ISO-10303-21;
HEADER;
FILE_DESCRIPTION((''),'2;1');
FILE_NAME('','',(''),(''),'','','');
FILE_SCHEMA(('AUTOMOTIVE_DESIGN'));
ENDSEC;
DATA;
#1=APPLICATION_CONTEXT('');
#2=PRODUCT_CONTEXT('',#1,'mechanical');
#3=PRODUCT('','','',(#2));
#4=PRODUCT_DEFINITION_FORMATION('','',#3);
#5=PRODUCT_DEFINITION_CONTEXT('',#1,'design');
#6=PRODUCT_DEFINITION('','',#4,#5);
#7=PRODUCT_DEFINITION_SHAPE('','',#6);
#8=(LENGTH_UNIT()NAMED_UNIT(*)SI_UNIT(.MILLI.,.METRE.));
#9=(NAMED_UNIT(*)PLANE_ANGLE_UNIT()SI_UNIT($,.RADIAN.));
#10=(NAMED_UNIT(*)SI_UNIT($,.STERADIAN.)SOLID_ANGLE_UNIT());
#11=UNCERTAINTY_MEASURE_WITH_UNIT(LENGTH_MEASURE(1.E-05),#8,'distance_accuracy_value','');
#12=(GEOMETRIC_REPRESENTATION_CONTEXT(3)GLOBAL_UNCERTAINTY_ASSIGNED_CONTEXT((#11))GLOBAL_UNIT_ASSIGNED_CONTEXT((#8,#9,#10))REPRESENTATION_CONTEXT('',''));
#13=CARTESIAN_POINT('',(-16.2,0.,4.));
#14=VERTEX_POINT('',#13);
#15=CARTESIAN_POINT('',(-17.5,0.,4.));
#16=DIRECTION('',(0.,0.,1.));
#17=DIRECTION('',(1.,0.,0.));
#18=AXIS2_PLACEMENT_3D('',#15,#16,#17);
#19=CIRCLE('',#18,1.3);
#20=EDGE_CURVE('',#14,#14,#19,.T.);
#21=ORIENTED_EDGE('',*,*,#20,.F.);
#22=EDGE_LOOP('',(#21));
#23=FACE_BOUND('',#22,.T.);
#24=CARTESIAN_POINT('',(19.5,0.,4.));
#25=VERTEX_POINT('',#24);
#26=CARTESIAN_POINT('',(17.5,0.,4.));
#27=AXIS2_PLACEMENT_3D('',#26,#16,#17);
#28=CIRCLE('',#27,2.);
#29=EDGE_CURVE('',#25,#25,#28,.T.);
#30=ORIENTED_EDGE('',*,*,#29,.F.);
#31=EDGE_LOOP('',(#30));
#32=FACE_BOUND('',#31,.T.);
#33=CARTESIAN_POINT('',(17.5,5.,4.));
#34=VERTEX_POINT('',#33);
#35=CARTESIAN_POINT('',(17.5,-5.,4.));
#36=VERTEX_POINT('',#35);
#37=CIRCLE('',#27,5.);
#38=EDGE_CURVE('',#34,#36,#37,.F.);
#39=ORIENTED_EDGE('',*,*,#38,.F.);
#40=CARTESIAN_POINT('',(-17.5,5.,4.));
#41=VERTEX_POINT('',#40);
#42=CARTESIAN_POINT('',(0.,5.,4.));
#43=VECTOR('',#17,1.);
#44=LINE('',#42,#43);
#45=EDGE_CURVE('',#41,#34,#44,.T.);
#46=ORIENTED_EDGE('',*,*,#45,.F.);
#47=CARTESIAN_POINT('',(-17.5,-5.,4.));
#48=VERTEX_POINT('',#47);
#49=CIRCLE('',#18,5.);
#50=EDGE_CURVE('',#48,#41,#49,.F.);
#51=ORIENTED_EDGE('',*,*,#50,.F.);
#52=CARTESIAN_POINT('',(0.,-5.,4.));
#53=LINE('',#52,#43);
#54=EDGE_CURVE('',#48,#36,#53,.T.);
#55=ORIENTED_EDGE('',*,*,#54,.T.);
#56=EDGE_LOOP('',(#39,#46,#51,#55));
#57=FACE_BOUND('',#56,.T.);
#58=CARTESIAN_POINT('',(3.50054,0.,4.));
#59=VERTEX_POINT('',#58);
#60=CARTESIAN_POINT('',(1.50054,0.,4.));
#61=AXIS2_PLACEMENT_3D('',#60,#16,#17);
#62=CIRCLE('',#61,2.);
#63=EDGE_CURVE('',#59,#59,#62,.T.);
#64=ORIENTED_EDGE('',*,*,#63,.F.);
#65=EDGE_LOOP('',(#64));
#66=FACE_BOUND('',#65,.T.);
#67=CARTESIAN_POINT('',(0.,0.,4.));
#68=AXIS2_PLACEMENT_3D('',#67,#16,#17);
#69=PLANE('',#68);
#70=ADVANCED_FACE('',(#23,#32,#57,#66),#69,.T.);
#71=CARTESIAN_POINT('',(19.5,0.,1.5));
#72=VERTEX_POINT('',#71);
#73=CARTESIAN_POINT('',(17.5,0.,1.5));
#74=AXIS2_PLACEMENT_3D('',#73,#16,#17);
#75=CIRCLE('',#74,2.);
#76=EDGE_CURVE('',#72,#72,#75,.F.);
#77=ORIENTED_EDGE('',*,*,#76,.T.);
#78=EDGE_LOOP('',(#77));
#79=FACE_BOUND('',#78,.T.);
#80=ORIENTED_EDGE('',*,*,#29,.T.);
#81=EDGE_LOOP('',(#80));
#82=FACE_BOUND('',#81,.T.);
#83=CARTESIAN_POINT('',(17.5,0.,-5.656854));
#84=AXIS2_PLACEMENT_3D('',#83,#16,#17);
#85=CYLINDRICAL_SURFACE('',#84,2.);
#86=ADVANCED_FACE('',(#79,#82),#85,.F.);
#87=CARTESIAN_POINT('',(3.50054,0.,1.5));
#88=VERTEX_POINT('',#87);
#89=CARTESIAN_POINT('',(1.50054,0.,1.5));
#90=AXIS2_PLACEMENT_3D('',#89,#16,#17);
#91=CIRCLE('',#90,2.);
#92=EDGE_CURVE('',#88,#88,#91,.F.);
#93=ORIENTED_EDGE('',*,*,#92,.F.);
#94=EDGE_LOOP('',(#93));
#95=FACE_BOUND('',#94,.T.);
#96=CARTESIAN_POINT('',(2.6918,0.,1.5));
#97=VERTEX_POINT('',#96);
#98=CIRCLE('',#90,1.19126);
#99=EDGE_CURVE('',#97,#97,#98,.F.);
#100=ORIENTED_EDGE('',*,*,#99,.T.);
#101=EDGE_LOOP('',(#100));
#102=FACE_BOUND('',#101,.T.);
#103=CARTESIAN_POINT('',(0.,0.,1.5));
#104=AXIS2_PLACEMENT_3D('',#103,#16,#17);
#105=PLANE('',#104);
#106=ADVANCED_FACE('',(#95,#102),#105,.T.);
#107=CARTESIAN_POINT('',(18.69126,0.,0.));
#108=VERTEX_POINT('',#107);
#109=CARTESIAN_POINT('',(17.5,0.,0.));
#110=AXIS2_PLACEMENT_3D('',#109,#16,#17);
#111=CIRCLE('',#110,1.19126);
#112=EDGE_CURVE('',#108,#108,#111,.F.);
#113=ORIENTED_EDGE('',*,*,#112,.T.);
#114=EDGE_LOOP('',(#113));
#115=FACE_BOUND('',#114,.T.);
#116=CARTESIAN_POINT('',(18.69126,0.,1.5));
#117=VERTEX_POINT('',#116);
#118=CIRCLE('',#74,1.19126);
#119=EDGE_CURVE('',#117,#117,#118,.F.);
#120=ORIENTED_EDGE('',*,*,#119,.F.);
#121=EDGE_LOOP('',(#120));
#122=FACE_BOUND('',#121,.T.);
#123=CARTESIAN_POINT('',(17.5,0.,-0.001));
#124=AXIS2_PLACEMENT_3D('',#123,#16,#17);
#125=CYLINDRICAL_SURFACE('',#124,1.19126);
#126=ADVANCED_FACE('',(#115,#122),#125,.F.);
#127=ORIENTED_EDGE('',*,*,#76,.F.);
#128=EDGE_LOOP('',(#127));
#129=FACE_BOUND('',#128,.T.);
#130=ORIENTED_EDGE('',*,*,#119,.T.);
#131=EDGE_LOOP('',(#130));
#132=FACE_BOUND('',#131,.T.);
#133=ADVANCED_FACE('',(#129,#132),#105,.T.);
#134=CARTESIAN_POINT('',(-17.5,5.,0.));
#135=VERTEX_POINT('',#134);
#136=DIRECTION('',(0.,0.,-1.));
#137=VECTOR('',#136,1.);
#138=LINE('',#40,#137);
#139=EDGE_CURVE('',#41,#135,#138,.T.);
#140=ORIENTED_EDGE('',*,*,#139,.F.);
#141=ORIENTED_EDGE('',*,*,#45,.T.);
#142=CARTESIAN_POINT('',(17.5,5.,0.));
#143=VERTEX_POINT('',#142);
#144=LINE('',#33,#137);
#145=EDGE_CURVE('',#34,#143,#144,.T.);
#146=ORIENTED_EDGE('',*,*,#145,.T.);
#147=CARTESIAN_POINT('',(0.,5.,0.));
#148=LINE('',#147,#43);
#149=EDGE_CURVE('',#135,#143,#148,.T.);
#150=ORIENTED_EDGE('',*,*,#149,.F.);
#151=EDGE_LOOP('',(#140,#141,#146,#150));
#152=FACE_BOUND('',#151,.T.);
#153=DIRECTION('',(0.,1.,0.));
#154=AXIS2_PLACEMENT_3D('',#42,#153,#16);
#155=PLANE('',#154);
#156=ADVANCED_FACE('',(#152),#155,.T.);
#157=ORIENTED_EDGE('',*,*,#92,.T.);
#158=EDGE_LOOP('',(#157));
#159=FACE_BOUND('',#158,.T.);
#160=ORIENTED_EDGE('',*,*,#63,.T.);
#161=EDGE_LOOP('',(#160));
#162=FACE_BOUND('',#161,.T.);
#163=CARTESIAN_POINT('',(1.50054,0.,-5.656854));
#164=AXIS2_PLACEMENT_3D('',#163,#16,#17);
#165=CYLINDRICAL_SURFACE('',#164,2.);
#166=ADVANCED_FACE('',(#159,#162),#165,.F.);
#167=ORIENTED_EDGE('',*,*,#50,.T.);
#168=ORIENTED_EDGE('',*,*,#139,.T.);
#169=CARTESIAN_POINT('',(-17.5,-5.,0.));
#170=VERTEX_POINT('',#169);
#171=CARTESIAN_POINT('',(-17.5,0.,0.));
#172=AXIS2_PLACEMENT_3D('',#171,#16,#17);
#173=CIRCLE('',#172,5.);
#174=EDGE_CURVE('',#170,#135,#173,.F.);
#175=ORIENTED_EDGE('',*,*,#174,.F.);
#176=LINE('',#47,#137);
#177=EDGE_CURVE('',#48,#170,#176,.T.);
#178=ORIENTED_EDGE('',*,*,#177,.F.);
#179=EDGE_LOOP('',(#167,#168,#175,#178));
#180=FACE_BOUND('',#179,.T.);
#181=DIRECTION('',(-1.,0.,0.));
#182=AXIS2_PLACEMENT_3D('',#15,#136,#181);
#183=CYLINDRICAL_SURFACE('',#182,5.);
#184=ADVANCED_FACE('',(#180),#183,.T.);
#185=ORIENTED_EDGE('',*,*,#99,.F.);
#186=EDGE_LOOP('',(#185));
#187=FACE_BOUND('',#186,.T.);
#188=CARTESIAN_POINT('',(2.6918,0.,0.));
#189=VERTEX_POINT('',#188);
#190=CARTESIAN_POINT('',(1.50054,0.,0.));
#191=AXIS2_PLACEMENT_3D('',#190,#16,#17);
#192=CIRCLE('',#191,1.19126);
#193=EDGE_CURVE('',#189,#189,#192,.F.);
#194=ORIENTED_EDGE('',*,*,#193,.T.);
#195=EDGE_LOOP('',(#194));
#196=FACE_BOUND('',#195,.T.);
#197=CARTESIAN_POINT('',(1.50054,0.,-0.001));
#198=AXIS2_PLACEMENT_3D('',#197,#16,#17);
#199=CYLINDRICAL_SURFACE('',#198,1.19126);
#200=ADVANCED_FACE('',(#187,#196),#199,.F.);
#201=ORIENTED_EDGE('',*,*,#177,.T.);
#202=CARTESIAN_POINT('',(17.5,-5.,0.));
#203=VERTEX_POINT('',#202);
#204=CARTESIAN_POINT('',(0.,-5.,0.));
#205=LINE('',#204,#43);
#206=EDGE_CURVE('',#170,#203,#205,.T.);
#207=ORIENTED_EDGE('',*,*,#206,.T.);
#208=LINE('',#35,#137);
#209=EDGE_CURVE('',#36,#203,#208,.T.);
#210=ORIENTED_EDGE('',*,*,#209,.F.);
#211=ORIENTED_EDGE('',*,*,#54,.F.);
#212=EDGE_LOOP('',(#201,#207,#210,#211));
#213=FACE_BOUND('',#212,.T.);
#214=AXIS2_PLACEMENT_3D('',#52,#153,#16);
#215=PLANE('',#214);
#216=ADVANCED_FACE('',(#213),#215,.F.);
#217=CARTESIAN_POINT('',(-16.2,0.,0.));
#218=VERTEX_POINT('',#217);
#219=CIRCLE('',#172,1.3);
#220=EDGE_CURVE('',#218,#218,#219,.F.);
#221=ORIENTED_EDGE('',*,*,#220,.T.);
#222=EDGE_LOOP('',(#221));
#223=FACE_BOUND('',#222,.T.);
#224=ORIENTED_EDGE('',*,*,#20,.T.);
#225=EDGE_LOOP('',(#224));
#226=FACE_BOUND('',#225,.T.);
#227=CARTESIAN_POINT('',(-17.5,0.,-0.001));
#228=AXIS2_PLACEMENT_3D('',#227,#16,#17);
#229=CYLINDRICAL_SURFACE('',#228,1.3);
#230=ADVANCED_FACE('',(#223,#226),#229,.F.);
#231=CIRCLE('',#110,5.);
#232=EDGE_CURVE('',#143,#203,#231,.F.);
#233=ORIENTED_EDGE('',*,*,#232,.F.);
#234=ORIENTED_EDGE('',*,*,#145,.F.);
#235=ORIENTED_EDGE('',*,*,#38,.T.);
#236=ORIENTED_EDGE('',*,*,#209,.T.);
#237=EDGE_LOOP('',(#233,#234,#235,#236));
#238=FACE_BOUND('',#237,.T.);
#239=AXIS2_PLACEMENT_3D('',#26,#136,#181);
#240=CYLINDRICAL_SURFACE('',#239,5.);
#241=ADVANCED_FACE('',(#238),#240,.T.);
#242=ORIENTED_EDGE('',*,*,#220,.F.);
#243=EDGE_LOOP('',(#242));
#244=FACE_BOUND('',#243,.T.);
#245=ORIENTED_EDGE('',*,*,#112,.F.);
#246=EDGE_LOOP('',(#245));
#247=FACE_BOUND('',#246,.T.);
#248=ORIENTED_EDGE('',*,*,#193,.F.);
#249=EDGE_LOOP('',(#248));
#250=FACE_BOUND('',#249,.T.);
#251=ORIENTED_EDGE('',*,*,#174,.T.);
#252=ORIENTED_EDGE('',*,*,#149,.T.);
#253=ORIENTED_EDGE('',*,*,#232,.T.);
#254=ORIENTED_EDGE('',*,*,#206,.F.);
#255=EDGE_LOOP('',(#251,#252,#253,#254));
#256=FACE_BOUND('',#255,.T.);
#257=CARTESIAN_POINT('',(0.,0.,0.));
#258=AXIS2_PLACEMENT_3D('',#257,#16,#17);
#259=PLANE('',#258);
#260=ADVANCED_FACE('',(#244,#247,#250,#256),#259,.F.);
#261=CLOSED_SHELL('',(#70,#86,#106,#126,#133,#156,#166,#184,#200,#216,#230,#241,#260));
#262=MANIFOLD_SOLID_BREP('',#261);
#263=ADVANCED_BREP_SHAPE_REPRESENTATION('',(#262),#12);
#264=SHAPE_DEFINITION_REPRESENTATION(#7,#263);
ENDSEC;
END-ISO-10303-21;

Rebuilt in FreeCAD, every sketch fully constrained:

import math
import FreeCAD as App
import Part
import Sketcher
from FreeCAD import Vector

doc = App.newDocument("Part")
body = doc.addObject("PartDesign::Body", "Body")

# Sketch on XY plane
sketch1 = body.newObject("Sketcher::SketchObject", "Sketch")
sketch1.AttachmentSupport = (doc.getObject("XY_Plane"), [""])
sketch1.MapMode = "FlatFace"
sketch1.addGeometry([
    Part.LineSegment(Vector(-17.5, -5, 0), Vector(17.5, -5, 0)),
    Part.ArcOfCircle(Part.Circle(Vector(17.5, 0, 0), Vector(0, 0, 1), 5), math.radians(-90), math.radians(90)),
    Part.LineSegment(Vector(17.5, 5, 0), Vector(-17.5, 5, 0)),
    Part.ArcOfCircle(Part.Circle(Vector(-17.5, 0, 0), Vector(0, 0, 1), 5), math.radians(90), math.radians(270)),
], False)
sketch1.addConstraint([
    Sketcher.Constraint("Tangent", 0, 2, 1, 1),
    Sketcher.Constraint("Tangent", 1, 2, 2, 1),
    Sketcher.Constraint("Tangent", 2, 2, 3, 1),
    Sketcher.Constraint("Tangent", 3, 2, 0, 1),
    Sketcher.Constraint("Horizontal", 0),
    Sketcher.Constraint("Horizontal", 2),
    Sketcher.Constraint("Symmetric", 1, 3, 3, 3, -1, 1),
    Sketcher.Constraint("Radius", 1, 5.0),
    Sketcher.Constraint("DistanceX", 0, 1, 0, 2, 35.0),
])
pad1 = body.newObject("PartDesign::Pad", "Pad")
pad1.Profile = sketch1
pad1.Length = 4

# Sketch on XY plane
sketch2 = body.newObject("Sketcher::SketchObject", "Sketch001")
sketch2.AttachmentSupport = (doc.getObject("XY_Plane"), [""])
sketch2.MapMode = "FlatFace"
sketch2.AttachmentOffset = App.Placement(Vector(0, 0, 4), App.Rotation())
sketch2.addGeometry(Part.Circle(Vector(17.5, 0, 0), Vector(0, 0, 1), 1.19126), False)
sketch2.addConstraint([
    Sketcher.Constraint("PointOnObject", 0, 3, -1),
    Sketcher.Constraint("DistanceX", -1, 1, 0, 3, 17.5),
    Sketcher.Constraint("Diameter", 0, 2.38252),
])
pocket1 = body.newObject("PartDesign::Pocket", "Pocket")
pocket1.Profile = sketch2
pocket1.Type = "UpToFirst"

# Sketch on XY plane
sketch3 = body.newObject("Sketcher::SketchObject", "Sketch002")
sketch3.AttachmentSupport = (doc.getObject("XY_Plane"), [""])
sketch3.MapMode = "FlatFace"
sketch3.AttachmentOffset = App.Placement(Vector(0, 0, 4), App.Rotation())
sketch3.addGeometry(Part.Circle(Vector(1.50054, 0, 0), Vector(0, 0, 1), 1.19126), False)
sketch3.addConstraint([
    Sketcher.Constraint("PointOnObject", 0, 3, -1),
    Sketcher.Constraint("Diameter", 0, 2.38252),
    Sketcher.Constraint("DistanceX", -1, 1, 0, 3, 1.50054),
])
pocket2 = body.newObject("PartDesign::Pocket", "Pocket001")
pocket2.Profile = sketch3
pocket2.Type = "UpToFirst"

# Sketch on XY plane
sketch4 = body.newObject("Sketcher::SketchObject", "Sketch003")
sketch4.AttachmentSupport = (doc.getObject("XY_Plane"), [""])
sketch4.MapMode = "FlatFace"
sketch4.AttachmentOffset = App.Placement(Vector(0, 0, 4), App.Rotation())
sketch4.addGeometry(Part.Circle(Vector(-17.5, 0, 0), Vector(0, 0, 1), 1.3), False)
sketch4.addConstraint([
    Sketcher.Constraint("PointOnObject", 0, 3, -1),
    Sketcher.Constraint("Diameter", 0, 2.6),
    Sketcher.Constraint("DistanceX", 0, 3, -1, 1, 17.5),
])
pocket3 = body.newObject("PartDesign::Pocket", "Pocket002")
pocket3.Profile = sketch4
pocket3.Type = "UpToFirst"

# Sketch on XY plane
sketch5 = body.newObject("Sketcher::SketchObject", "Sketch004")
sketch5.AttachmentSupport = (doc.getObject("XY_Plane"), [""])
sketch5.MapMode = "FlatFace"
sketch5.AttachmentOffset = App.Placement(Vector(0, 0, 4), App.Rotation())
sketch5.addGeometry([
    Part.Circle(Vector(17.5, 0, 0), Vector(0, 0, 1), 2),
    Part.Circle(Vector(1.50054, 0, 0), Vector(0, 0, 1), 2),
], False)
sketch5.addConstraint([
    Sketcher.Constraint("Equal", 0, 1),
    Sketcher.Constraint("PointOnObject", 0, 3, -1),
    Sketcher.Constraint("PointOnObject", 1, 3, -1),
    Sketcher.Constraint("Diameter", 0, 4.0),
    Sketcher.Constraint("DistanceX", -1, 1, 0, 3, 17.5),
    Sketcher.Constraint("DistanceX", -1, 1, 1, 3, 1.50054),
])
pocket4 = body.newObject("PartDesign::Pocket", "Pocket003")
pocket4.Profile = sketch5
pocket4.Length = 2.5

doc.recompute()
